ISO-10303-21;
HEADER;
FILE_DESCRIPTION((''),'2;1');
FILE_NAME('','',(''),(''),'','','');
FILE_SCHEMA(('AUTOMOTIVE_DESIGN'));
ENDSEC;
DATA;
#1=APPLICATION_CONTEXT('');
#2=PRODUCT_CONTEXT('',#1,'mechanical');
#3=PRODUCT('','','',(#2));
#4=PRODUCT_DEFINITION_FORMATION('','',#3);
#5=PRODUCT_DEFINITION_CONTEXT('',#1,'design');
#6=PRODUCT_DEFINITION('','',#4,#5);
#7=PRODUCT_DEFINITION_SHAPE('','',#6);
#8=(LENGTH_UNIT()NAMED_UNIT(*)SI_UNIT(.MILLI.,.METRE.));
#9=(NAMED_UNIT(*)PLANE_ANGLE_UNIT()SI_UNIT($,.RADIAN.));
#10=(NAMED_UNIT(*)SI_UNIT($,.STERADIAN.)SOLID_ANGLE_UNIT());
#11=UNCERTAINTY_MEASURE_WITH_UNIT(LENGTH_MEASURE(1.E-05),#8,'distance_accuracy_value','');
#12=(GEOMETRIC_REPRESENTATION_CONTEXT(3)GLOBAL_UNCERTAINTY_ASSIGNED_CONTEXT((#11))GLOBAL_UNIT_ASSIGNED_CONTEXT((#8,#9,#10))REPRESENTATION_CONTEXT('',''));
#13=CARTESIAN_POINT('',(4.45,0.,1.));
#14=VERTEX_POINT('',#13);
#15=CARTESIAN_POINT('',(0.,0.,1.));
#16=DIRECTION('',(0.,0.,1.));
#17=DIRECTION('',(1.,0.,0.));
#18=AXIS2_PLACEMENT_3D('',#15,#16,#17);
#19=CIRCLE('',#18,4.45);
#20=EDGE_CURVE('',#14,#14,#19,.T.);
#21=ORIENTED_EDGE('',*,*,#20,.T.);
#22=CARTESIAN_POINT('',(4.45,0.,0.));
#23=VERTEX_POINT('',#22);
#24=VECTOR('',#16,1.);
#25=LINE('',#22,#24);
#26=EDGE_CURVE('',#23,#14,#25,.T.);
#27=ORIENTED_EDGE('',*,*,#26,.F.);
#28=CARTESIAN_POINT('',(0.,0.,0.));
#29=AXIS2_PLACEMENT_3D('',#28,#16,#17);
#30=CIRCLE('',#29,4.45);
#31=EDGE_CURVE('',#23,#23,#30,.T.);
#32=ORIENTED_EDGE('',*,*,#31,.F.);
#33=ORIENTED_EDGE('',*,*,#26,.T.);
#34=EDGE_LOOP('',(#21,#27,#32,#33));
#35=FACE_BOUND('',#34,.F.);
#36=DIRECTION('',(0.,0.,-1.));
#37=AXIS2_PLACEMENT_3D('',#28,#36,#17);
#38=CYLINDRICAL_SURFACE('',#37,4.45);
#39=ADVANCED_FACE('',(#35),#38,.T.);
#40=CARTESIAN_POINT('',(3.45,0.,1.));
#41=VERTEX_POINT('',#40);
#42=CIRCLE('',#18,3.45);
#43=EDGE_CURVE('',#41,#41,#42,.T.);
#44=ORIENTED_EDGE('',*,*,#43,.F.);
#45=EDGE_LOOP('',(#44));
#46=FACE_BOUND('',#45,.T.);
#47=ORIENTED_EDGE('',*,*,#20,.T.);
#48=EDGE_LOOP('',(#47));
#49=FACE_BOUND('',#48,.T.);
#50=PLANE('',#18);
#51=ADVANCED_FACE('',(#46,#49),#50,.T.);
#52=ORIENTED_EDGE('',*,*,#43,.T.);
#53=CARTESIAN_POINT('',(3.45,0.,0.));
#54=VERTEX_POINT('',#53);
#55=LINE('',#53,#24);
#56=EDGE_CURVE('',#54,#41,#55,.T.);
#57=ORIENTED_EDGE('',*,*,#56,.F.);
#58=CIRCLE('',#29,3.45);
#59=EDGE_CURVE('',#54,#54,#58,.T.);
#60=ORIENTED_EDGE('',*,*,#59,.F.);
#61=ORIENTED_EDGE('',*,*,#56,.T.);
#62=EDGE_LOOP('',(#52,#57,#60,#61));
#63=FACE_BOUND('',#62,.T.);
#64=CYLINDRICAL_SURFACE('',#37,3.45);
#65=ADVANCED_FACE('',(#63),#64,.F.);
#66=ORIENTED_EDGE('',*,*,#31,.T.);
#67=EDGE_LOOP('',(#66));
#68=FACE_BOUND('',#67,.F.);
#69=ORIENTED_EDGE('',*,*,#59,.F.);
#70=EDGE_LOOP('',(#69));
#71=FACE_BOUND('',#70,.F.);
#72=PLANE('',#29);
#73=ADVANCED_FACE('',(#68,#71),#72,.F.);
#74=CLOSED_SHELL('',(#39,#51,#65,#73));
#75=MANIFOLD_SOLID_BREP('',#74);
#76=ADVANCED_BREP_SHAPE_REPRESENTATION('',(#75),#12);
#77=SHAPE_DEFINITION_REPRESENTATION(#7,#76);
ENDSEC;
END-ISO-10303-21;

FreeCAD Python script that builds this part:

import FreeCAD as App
import Part
import Sketcher

doc = App.newDocument("Part")
body = doc.addObject("PartDesign::Body", "Body")

sketch1 = body.newObject("Sketcher::SketchObject", "Sketch")
sketch1.AttachmentSupport = (doc.getObject("XY_Plane"), [""])
sketch1.MapMode = "FlatFace"
sketch1.addGeometry([
    Part.Circle(App.Vector(0, 0, 0), App.Vector(0, 0, 1), 4.5),
    Part.Circle(App.Vector(0, 0, 0), App.Vector(0, 0, 1), 3.5),
], False)
sketch1.addConstraint([
    Sketcher.Constraint("Coincident", 0, 3, -1, 1),
    Sketcher.Constraint("Coincident", 1, 3, -1, 1),
    Sketcher.Constraint("Diameter", 1, 6.9),
    Sketcher.Constraint("Diameter", 0, 8.9),
])
pad1 = body.newObject("PartDesign::Pad", "Pad")
pad1.Profile = sketch1
pad1.Length = 1

doc.recompute()
